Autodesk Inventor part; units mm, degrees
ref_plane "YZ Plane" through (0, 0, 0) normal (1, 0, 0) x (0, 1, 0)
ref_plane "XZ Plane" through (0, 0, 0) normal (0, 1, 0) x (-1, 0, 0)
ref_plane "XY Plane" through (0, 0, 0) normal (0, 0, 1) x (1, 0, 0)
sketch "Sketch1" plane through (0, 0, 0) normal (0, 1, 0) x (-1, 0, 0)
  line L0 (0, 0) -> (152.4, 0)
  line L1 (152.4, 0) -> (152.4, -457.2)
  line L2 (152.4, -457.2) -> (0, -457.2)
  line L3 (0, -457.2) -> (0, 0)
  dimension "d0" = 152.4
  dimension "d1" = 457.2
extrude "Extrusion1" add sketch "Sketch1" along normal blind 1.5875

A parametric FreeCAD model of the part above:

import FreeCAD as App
import Part
import Sketcher

V = App.Vector
Q = App.Units.Quantity

doc = App.newDocument("Part")
body = doc.addObject("PartDesign::Body", "Body")

# Sketch on XZ plane
sketch1 = body.newObject("Sketcher::SketchObject", "Sketch")
sketch1.AttachmentSupport = (doc.getObject("XZ_Plane"), [""])
sketch1.MapMode = "FlatFace"
sketch1.addGeometry([
    Part.LineSegment(V(-152, 0, 0), V(0, 0, 0)),
    Part.LineSegment(V(0, 0, 0), V(0, -457, 0)),
    Part.LineSegment(V(0, -457, 0), V(-152, -457, 0)),
    Part.LineSegment(V(-152, -457, 0), V(-152, 0, 0)),
], False)
sketch1.addConstraint([
    Sketcher.Constraint("Coincident", 0, 2, 1, 1),
    Sketcher.Constraint("Coincident", 1, 2, 2, 1),
    Sketcher.Constraint("Coincident", 2, 2, 3, 1),
    Sketcher.Constraint("Coincident", 3, 2, 0, 1),
    Sketcher.Constraint("Horizontal", 0),
    Sketcher.Constraint("Vertical", 1),
    Sketcher.Constraint("Horizontal", 2),
    Sketcher.Constraint("Vertical", 3),
    Sketcher.Constraint("Coincident", 0, 2, -1, 1),
    Sketcher.Constraint("DistanceX", 0, 1, 0, 2, Q("6 in")),
    Sketcher.Constraint("DistanceY", 1, 2, 1, 1, Q("18 in")),
])
pad1 = body.newObject("PartDesign::Pad", "Pad")
pad1.Profile = sketch1
pad1.Length = Q("0.0625 in")
pad1.Reversed = True

doc.recompute()
